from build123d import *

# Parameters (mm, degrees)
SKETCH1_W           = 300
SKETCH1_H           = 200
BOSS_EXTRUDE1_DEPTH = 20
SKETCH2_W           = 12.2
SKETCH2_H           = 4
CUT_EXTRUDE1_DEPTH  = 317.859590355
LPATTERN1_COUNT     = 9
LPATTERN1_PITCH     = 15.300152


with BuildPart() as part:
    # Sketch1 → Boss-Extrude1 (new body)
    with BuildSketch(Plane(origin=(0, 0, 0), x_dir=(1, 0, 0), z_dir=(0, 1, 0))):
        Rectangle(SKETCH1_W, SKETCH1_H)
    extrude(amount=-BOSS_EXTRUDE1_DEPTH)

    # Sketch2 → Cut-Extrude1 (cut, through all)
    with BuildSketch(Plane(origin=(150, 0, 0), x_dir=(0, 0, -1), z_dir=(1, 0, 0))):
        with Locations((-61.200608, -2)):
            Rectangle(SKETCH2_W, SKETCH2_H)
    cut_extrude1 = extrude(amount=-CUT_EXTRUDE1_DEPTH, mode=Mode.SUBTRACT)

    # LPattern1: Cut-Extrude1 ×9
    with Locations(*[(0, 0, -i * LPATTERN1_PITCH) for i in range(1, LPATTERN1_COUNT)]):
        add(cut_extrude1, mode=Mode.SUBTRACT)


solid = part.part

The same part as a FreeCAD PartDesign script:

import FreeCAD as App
import Part
import Sketcher


def add_polygon(sketch, points):
    """Adds a closed chain of lines whose ends are joined by coincident constraints."""
    first, n = sketch.GeometryCount, len(points)
    for a, b in zip(points, points[1:] + points[:1]):
        sketch.addGeometry(Part.LineSegment(App.Vector(*a, 0), App.Vector(*b, 0)), False)
    for i in range(n):
        sketch.addConstraint(Sketcher.Constraint("Coincident", first + i, 2, first + (i + 1) % n, 1))

doc = App.newDocument("Part")
body = doc.addObject("PartDesign::Body", "Body")

sketch1 = doc.addObject("Sketcher::SketchObject", "Sketch")
body.addObject(sketch1)
sketch1.AttachmentSupport = (doc.XZ_Plane, [""])
sketch1.MapMode = "FlatFace"
add_polygon(sketch1, [(-150, -100), (-150, 100), (150, 100), (150, -100)])
sketch1.addConstraint(Sketcher.Constraint("Vertical", 0))
sketch1.addConstraint(Sketcher.Constraint("Horizontal", 1))
sketch1.addConstraint(Sketcher.Constraint("Vertical", 2))
sketch1.addConstraint(Sketcher.Constraint("Horizontal", 3))
sketch1.addConstraint(Sketcher.Constraint("Symmetric", 0, 2, 2, 2, -1, 1))
sketch1.addConstraint(Sketcher.Constraint("DistanceX", 1, 1, 1, 2, 300.0))
sketch1.addConstraint(Sketcher.Constraint("DistanceY", 0, 1, 0, 2, 200.0))
pad1 = doc.addObject("PartDesign::Pad", "Pad")
body.addObject(pad1)
pad1.Profile = sketch1
pad1.Length = 20

sketch2 = doc.addObject("Sketcher::SketchObject", "Sketch001")
body.addObject(sketch2)
sketch2.AttachmentSupport = (doc.YZ_Plane, [""])
sketch2.MapMode = "FlatFace"
sketch2.AttachmentOffset = App.Placement(App.Vector(0, 0, 150), App.Rotation())
add_polygon(sketch2, [(0, 67.300608), (-4, 67.300608), (-4, 55.100608), (0, 55.100608)])
sketch2.addConstraint(Sketcher.Constraint("Horizontal", 0))
sketch2.addConstraint(Sketcher.Constraint("Vertical", 1))
sketch2.addConstraint(Sketcher.Constraint("Horizontal", 2))
sketch2.addConstraint(Sketcher.Constraint("Vertical", 3))
sketch2.addConstraint(Sketcher.Constraint("PointOnObject", 2, 2, -2))
sketch2.addConstraint(Sketcher.Constraint("DistanceX", 0, 2, 0, 1, 4.0))
sketch2.addConstraint(Sketcher.Constraint("DistanceY", 1, 2, 1, 1, 12.2))
sketch2.addConstraint(Sketcher.Constraint("DistanceY", -1, 1, 0, 2, 67.300608))
pocket1 = doc.addObject("PartDesign::Pocket", "Pocket")
body.addObject(pocket1)
pocket1.Profile = sketch2
pocket1.Type = "ThroughAll"
doc.recompute()

linearpattern = doc.addObject("PartDesign::LinearPattern", "LinearPattern")
body.addObject(linearpattern)
linearpattern.Originals = [pocket1]
linearpattern.Direction = (doc.Z_Axis, [""])
linearpattern.Mode = "offset"
linearpattern.Offset = 15.300152
linearpattern.Occurrences = 9
linearpattern.Reversed = True
body.Tip = linearpattern

doc.recompute()
